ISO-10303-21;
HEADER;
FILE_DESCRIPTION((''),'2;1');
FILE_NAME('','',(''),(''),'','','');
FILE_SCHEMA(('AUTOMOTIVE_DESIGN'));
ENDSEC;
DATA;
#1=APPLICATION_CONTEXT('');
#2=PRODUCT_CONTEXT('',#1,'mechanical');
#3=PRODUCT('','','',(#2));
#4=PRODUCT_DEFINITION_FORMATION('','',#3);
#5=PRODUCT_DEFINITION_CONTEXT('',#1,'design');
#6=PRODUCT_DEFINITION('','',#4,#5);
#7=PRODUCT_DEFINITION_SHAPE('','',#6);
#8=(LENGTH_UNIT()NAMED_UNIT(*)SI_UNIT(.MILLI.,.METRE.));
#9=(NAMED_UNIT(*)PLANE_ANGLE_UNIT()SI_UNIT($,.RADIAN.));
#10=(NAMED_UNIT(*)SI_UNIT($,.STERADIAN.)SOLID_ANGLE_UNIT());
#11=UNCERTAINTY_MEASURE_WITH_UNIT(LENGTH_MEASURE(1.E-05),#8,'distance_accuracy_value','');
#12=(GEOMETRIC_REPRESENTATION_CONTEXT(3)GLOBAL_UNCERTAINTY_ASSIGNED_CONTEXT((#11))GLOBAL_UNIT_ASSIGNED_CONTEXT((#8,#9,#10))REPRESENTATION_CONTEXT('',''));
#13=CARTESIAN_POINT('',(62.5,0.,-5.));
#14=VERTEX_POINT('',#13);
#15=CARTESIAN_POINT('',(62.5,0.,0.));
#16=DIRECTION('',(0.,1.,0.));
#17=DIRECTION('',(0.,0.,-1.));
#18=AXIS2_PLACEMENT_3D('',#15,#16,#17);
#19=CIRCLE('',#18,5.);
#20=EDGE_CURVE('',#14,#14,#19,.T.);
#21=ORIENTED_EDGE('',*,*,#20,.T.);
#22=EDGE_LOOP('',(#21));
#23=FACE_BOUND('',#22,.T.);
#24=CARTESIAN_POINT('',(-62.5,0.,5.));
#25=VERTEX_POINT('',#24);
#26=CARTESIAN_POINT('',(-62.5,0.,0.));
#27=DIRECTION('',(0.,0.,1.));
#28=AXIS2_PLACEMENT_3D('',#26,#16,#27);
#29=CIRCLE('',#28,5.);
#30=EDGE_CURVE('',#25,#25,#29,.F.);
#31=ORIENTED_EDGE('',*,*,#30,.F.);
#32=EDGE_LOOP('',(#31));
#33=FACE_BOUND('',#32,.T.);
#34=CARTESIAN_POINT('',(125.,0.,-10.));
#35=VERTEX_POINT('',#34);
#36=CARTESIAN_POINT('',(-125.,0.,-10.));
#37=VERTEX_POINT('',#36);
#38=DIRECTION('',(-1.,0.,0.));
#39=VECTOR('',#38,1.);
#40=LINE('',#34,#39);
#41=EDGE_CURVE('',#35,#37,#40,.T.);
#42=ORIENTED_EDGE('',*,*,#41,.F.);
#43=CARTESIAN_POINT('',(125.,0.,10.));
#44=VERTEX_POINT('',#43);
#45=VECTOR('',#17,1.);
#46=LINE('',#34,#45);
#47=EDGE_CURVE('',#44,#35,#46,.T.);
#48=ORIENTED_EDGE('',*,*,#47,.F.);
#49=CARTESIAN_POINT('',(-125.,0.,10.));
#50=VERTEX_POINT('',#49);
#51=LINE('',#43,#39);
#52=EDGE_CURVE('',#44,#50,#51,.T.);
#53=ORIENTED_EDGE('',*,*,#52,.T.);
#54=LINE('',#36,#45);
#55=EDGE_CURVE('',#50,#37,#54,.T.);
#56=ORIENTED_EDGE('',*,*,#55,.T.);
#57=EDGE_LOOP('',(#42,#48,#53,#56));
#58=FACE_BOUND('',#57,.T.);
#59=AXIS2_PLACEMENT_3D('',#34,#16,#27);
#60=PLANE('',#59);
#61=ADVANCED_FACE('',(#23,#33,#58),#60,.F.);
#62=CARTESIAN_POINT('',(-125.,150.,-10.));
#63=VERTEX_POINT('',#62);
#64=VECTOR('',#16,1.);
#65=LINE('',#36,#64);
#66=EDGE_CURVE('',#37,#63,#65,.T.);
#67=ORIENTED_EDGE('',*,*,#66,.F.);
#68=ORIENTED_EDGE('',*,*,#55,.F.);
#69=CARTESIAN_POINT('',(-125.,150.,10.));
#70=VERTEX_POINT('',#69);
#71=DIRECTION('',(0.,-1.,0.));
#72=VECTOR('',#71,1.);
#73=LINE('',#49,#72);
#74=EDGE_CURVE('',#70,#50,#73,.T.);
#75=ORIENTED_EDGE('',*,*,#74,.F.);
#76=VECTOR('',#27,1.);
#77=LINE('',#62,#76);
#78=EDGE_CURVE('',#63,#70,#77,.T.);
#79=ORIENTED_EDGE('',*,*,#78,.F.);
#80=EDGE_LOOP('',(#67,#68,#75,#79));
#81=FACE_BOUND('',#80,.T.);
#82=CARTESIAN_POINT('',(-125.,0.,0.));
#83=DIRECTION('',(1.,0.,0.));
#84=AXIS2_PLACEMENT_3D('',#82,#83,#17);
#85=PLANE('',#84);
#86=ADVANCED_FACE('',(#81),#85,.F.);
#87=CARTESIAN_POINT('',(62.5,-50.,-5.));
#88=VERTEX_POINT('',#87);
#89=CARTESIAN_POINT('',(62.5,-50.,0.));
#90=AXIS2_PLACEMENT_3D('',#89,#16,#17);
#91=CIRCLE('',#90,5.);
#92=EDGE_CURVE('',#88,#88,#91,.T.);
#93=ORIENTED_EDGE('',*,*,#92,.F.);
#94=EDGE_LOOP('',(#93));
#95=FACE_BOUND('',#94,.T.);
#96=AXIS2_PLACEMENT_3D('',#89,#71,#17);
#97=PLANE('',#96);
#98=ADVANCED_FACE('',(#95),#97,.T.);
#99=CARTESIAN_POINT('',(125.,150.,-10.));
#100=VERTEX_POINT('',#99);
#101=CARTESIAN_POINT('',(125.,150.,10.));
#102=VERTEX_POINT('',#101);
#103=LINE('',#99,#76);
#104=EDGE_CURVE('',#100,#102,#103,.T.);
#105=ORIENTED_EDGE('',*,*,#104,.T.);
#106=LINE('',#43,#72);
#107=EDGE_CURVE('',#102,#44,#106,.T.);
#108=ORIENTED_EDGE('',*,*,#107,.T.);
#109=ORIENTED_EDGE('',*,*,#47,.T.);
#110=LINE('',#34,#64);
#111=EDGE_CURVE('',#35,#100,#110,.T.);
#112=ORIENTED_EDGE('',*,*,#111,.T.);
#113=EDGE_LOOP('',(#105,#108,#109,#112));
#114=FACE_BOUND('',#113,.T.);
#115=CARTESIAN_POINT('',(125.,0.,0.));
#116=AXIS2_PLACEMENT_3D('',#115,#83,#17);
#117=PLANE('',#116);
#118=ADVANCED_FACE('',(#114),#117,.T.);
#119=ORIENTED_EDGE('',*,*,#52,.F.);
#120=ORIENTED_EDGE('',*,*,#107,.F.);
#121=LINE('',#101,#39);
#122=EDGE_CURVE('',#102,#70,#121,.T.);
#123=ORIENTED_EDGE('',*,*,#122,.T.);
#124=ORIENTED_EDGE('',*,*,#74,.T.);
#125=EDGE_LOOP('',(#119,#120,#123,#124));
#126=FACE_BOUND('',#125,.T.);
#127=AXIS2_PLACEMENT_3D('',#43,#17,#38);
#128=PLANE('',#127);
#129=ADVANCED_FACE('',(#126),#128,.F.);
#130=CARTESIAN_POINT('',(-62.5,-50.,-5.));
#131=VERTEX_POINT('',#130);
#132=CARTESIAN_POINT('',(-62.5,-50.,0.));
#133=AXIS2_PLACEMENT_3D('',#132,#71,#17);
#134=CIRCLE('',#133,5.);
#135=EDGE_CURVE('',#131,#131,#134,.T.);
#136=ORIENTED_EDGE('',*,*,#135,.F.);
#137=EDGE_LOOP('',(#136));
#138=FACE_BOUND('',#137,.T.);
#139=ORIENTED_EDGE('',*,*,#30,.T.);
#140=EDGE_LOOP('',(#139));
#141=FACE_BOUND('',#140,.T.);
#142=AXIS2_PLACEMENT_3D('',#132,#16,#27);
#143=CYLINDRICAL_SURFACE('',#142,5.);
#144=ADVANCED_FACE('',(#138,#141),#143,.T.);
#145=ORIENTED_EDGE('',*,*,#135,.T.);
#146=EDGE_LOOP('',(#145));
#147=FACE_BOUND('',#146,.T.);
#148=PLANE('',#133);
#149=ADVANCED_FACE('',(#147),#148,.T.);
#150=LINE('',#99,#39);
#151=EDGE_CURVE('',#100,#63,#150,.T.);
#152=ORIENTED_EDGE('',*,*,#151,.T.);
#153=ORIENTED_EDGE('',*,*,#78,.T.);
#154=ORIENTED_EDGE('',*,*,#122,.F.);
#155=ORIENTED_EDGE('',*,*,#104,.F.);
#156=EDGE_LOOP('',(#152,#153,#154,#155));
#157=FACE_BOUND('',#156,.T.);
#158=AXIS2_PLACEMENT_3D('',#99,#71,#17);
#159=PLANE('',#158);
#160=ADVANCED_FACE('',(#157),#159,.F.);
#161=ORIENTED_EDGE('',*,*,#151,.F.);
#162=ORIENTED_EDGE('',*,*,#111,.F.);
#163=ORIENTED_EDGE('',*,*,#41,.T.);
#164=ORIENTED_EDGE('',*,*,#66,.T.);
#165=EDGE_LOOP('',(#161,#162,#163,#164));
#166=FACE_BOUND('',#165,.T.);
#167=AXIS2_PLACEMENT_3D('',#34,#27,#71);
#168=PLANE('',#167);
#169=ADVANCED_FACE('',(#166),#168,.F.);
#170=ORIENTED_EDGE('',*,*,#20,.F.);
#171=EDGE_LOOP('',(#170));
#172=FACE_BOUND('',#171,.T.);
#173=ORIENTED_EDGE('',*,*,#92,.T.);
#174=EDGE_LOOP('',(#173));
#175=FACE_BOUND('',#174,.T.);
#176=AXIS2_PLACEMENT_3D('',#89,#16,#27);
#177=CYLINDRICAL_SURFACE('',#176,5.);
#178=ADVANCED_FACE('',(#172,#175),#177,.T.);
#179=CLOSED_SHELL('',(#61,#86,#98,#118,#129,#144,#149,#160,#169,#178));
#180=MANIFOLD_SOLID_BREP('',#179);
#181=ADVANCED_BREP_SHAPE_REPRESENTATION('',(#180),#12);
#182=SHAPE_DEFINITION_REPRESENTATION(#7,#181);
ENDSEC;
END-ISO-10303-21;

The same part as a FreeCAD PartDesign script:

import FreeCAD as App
import Part
import Sketcher

V = App.Vector


def add_polygon(sketch, points):
    """Adds a closed chain of lines whose ends are joined by coincident constraints."""
    first, n = sketch.GeometryCount, len(points)
    for a, b in zip(points, points[1:] + points[:1]):
        sketch.addGeometry(Part.LineSegment(App.Vector(*a, 0), App.Vector(*b, 0)), False)
    for i in range(n):
        sketch.addConstraint(Sketcher.Constraint("Coincident", first + i, 2, first + (i + 1) % n, 1))

doc = App.newDocument("Part")
body = doc.addObject("PartDesign::Body", "Body")

sketch1 = doc.addObject("Sketcher::SketchObject", "Sketch")
body.addObject(sketch1)
sketch1.AttachmentSupport = (doc.YZ_Plane, [""])
sketch1.MapMode = "FlatFace"
add_polygon(sketch1, [(150, 10), (0, 10), (0, -10), (150, -10)])
sketch1.addConstraint([
    Sketcher.Constraint("Horizontal", 0),
    Sketcher.Constraint("Vertical", 1),
    Sketcher.Constraint("Horizontal", 2),
    Sketcher.Constraint("Vertical", 3),
    Sketcher.Constraint("Symmetric", 0, 2, 1, 2, -1, 1),
    Sketcher.Constraint("DistanceX", 0, 2, 0, 1, 150.0),
    Sketcher.Constraint("DistanceY", 1, 2, 1, 1, 20.0),
])
pad1 = doc.addObject("PartDesign::Pad", "Pad")
body.addObject(pad1)
pad1.Profile = sketch1
pad1.Length = 250
pad1.Midplane = True

sketch2 = doc.addObject("Sketcher::SketchObject", "Sketch001")
body.addObject(sketch2)
sketch2.AttachmentSupport = (doc.XZ_Plane, [""])
sketch2.MapMode = "FlatFace"
sketch2.addGeometry(Part.Circle(V(-62, 0, 0), V(0, 0, 1), 5), False)
sketch2.addConstraint([
    Sketcher.Constraint("PointOnObject", 0, 3, -1),
    Sketcher.Constraint("Diameter", 0, 10.0),
    Sketcher.Constraint("DistanceX", 0, 3, -1, 1, 62.5),
])
pad2 = doc.addObject("PartDesign::Pad", "Pad001")
body.addObject(pad2)
pad2.Profile = sketch2
pad2.Length = 50
doc.recompute()

mirrored = doc.addObject("PartDesign::Mirrored", "Mirrored")
body.addObject(mirrored)
mirrored.Originals = [pad2]
mirrored.MirrorPlane = (doc.YZ_Plane, [""])
body.Tip = mirrored

doc.recompute()
